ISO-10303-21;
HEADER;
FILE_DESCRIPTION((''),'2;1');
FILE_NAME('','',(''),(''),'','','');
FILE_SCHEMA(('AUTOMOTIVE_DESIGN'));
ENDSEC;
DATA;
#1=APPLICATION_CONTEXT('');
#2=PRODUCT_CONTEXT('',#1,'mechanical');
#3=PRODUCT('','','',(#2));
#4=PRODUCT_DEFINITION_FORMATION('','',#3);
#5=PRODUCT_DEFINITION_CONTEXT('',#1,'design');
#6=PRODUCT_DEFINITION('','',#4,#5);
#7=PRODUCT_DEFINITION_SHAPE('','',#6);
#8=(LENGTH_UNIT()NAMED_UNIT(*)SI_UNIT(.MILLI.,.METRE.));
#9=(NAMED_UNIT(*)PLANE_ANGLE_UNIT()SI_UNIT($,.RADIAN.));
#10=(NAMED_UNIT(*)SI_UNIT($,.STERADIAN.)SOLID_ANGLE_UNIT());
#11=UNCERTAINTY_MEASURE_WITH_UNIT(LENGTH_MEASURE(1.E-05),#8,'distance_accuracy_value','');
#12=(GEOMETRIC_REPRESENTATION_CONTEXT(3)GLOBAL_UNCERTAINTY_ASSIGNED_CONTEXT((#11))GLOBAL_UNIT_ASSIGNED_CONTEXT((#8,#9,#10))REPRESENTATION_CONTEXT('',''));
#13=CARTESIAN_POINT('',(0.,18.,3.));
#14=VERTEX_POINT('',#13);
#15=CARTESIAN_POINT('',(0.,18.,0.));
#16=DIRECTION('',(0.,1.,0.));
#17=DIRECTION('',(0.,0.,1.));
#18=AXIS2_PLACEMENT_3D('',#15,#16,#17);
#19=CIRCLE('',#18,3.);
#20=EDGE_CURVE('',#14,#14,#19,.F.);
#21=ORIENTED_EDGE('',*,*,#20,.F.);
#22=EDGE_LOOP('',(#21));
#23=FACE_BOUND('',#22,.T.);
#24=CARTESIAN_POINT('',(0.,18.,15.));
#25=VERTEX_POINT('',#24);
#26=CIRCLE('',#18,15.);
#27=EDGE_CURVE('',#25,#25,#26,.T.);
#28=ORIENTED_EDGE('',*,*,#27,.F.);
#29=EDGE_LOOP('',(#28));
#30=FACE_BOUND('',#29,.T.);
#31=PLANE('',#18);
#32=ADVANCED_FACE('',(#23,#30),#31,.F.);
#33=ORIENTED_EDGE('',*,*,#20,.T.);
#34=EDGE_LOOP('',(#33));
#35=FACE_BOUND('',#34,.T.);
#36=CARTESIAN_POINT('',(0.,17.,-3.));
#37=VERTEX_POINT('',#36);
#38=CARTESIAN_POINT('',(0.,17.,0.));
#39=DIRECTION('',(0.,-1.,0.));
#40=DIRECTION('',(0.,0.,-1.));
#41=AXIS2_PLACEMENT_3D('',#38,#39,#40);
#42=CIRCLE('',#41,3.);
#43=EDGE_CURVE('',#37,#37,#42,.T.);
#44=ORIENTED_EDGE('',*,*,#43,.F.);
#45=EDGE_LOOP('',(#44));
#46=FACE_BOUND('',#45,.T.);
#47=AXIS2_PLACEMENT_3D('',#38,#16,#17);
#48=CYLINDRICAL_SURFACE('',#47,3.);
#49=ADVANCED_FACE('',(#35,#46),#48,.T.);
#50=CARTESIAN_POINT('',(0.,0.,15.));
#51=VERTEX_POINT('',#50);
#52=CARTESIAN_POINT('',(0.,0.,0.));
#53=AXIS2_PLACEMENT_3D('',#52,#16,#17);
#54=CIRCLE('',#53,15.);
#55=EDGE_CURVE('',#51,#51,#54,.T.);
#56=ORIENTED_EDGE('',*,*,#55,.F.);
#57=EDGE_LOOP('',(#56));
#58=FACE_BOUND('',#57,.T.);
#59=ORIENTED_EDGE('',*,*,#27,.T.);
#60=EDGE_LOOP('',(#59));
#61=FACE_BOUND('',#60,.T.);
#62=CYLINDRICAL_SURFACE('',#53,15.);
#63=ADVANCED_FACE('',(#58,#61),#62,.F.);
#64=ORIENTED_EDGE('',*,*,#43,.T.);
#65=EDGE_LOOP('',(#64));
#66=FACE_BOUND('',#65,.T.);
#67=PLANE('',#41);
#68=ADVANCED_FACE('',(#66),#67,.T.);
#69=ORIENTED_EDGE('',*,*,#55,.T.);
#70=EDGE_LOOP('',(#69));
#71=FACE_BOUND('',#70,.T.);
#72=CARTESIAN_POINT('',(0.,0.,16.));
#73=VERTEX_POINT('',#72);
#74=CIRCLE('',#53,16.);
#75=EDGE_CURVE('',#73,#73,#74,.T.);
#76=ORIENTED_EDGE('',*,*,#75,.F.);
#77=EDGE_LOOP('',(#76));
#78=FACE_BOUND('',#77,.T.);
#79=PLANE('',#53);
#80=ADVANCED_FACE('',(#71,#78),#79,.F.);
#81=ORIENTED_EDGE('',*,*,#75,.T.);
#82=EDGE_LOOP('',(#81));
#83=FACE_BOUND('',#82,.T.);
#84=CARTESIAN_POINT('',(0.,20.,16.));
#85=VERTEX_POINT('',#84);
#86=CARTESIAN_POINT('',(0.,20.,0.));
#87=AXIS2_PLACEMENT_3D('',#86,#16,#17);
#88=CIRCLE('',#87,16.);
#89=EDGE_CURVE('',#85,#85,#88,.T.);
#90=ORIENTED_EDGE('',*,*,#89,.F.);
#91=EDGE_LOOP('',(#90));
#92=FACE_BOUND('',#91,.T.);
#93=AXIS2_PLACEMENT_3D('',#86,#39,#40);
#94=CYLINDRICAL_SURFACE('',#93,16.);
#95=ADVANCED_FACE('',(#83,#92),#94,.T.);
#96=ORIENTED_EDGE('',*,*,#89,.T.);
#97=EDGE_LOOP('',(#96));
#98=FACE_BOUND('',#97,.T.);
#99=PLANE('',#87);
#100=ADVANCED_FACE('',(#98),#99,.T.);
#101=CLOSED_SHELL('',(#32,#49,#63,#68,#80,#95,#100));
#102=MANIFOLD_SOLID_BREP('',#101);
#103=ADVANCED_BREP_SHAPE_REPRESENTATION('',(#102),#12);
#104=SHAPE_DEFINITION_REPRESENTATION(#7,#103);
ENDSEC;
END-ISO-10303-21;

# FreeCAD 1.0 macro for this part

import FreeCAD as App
import Part
import Sketcher

V = App.Vector
Q = App.Units.Quantity

doc = App.newDocument("Part")
params = doc.addObject("Spreadsheet::Sheet", "Params")
for row, (alias, value) in enumerate([
    ("sketch1_diameter", "32 mm"),
    ("pad1_length", "20 mm"),
    ("sketch2_diameter", "30 mm"),
    ("sketch3_diameter", "6 mm"),
    ("pad2_length", "1 mm"),
], start=1):
    params.set(f"A{row}", alias)
    params.set(f"B{row}", "=" + value)
    params.setAlias(f"B{row}", alias)

body = doc.addObject("PartDesign::Body", "Body")

sketch1 = body.newObject("Sketcher::SketchObject", "Sketch")
sketch1.AttachmentSupport = (doc.getObject("XZ_Plane"), [""])
sketch1.MapMode = "FlatFace"
sketch1.addGeometry(Part.Circle(V(0, 0, 0), V(0, 0, 1), 16), False)
sketch1.addConstraint([
    Sketcher.Constraint("Coincident", 0, 3, -1, 1),
    Sketcher.Constraint("Diameter", 0, Q("32 mm")),
])
sketch1.setExpression("Constraints[1]", "Params.sketch1_diameter")
pad1 = body.newObject("PartDesign::Pad", "Pad")
pad1.Profile = sketch1
pad1.setExpression("Length", "Params.pad1_length")
pad1.Reversed = True

sketch2 = body.newObject("Sketcher::SketchObject", "Sketch001")
sketch2.AttachmentSupport = (doc.getObject("XZ_Plane"), [""])
sketch2.MapMode = "FlatFace"
sketch2.AttachmentOffset = App.Placement(V(0, 0, -18), App.Rotation())
sketch2.addGeometry(Part.Circle(V(0, 0, 0), V(0, 0, 1), 15), False)
sketch2.addConstraint([
    Sketcher.Constraint("Coincident", 0, 3, -1, 1),
    Sketcher.Constraint("Diameter", 0, Q("30 mm")),
])
sketch2.setExpression("Constraints[1]", "Params.sketch2_diameter")
pocket1 = body.newObject("PartDesign::Pocket", "Pocket")
pocket1.Profile = sketch2
pocket1.Type = "ThroughAll"
pocket1.Reversed = True

sketch3 = body.newObject("Sketcher::SketchObject", "Sketch002")
sketch3.AttachmentSupport = (doc.getObject("XZ_Plane"), [""])
sketch3.MapMode = "FlatFace"
sketch3.AttachmentOffset = App.Placement(V(0, 0, -18), App.Rotation())
sketch3.addGeometry(Part.Circle(V(0, 0, 0), V(0, 0, 1), 3), False)
sketch3.addConstraint([
    Sketcher.Constraint("Coincident", 0, 3, -1, 1),
    Sketcher.Constraint("Diameter", 0, Q("6 mm")),
])
sketch3.setExpression("Constraints[1]", "Params.sketch3_diameter")
pad2 = body.newObject("PartDesign::Pad", "Pad001")
pad2.Profile = sketch3
pad2.setExpression("Length", "Params.pad2_length")

doc.recompute()
